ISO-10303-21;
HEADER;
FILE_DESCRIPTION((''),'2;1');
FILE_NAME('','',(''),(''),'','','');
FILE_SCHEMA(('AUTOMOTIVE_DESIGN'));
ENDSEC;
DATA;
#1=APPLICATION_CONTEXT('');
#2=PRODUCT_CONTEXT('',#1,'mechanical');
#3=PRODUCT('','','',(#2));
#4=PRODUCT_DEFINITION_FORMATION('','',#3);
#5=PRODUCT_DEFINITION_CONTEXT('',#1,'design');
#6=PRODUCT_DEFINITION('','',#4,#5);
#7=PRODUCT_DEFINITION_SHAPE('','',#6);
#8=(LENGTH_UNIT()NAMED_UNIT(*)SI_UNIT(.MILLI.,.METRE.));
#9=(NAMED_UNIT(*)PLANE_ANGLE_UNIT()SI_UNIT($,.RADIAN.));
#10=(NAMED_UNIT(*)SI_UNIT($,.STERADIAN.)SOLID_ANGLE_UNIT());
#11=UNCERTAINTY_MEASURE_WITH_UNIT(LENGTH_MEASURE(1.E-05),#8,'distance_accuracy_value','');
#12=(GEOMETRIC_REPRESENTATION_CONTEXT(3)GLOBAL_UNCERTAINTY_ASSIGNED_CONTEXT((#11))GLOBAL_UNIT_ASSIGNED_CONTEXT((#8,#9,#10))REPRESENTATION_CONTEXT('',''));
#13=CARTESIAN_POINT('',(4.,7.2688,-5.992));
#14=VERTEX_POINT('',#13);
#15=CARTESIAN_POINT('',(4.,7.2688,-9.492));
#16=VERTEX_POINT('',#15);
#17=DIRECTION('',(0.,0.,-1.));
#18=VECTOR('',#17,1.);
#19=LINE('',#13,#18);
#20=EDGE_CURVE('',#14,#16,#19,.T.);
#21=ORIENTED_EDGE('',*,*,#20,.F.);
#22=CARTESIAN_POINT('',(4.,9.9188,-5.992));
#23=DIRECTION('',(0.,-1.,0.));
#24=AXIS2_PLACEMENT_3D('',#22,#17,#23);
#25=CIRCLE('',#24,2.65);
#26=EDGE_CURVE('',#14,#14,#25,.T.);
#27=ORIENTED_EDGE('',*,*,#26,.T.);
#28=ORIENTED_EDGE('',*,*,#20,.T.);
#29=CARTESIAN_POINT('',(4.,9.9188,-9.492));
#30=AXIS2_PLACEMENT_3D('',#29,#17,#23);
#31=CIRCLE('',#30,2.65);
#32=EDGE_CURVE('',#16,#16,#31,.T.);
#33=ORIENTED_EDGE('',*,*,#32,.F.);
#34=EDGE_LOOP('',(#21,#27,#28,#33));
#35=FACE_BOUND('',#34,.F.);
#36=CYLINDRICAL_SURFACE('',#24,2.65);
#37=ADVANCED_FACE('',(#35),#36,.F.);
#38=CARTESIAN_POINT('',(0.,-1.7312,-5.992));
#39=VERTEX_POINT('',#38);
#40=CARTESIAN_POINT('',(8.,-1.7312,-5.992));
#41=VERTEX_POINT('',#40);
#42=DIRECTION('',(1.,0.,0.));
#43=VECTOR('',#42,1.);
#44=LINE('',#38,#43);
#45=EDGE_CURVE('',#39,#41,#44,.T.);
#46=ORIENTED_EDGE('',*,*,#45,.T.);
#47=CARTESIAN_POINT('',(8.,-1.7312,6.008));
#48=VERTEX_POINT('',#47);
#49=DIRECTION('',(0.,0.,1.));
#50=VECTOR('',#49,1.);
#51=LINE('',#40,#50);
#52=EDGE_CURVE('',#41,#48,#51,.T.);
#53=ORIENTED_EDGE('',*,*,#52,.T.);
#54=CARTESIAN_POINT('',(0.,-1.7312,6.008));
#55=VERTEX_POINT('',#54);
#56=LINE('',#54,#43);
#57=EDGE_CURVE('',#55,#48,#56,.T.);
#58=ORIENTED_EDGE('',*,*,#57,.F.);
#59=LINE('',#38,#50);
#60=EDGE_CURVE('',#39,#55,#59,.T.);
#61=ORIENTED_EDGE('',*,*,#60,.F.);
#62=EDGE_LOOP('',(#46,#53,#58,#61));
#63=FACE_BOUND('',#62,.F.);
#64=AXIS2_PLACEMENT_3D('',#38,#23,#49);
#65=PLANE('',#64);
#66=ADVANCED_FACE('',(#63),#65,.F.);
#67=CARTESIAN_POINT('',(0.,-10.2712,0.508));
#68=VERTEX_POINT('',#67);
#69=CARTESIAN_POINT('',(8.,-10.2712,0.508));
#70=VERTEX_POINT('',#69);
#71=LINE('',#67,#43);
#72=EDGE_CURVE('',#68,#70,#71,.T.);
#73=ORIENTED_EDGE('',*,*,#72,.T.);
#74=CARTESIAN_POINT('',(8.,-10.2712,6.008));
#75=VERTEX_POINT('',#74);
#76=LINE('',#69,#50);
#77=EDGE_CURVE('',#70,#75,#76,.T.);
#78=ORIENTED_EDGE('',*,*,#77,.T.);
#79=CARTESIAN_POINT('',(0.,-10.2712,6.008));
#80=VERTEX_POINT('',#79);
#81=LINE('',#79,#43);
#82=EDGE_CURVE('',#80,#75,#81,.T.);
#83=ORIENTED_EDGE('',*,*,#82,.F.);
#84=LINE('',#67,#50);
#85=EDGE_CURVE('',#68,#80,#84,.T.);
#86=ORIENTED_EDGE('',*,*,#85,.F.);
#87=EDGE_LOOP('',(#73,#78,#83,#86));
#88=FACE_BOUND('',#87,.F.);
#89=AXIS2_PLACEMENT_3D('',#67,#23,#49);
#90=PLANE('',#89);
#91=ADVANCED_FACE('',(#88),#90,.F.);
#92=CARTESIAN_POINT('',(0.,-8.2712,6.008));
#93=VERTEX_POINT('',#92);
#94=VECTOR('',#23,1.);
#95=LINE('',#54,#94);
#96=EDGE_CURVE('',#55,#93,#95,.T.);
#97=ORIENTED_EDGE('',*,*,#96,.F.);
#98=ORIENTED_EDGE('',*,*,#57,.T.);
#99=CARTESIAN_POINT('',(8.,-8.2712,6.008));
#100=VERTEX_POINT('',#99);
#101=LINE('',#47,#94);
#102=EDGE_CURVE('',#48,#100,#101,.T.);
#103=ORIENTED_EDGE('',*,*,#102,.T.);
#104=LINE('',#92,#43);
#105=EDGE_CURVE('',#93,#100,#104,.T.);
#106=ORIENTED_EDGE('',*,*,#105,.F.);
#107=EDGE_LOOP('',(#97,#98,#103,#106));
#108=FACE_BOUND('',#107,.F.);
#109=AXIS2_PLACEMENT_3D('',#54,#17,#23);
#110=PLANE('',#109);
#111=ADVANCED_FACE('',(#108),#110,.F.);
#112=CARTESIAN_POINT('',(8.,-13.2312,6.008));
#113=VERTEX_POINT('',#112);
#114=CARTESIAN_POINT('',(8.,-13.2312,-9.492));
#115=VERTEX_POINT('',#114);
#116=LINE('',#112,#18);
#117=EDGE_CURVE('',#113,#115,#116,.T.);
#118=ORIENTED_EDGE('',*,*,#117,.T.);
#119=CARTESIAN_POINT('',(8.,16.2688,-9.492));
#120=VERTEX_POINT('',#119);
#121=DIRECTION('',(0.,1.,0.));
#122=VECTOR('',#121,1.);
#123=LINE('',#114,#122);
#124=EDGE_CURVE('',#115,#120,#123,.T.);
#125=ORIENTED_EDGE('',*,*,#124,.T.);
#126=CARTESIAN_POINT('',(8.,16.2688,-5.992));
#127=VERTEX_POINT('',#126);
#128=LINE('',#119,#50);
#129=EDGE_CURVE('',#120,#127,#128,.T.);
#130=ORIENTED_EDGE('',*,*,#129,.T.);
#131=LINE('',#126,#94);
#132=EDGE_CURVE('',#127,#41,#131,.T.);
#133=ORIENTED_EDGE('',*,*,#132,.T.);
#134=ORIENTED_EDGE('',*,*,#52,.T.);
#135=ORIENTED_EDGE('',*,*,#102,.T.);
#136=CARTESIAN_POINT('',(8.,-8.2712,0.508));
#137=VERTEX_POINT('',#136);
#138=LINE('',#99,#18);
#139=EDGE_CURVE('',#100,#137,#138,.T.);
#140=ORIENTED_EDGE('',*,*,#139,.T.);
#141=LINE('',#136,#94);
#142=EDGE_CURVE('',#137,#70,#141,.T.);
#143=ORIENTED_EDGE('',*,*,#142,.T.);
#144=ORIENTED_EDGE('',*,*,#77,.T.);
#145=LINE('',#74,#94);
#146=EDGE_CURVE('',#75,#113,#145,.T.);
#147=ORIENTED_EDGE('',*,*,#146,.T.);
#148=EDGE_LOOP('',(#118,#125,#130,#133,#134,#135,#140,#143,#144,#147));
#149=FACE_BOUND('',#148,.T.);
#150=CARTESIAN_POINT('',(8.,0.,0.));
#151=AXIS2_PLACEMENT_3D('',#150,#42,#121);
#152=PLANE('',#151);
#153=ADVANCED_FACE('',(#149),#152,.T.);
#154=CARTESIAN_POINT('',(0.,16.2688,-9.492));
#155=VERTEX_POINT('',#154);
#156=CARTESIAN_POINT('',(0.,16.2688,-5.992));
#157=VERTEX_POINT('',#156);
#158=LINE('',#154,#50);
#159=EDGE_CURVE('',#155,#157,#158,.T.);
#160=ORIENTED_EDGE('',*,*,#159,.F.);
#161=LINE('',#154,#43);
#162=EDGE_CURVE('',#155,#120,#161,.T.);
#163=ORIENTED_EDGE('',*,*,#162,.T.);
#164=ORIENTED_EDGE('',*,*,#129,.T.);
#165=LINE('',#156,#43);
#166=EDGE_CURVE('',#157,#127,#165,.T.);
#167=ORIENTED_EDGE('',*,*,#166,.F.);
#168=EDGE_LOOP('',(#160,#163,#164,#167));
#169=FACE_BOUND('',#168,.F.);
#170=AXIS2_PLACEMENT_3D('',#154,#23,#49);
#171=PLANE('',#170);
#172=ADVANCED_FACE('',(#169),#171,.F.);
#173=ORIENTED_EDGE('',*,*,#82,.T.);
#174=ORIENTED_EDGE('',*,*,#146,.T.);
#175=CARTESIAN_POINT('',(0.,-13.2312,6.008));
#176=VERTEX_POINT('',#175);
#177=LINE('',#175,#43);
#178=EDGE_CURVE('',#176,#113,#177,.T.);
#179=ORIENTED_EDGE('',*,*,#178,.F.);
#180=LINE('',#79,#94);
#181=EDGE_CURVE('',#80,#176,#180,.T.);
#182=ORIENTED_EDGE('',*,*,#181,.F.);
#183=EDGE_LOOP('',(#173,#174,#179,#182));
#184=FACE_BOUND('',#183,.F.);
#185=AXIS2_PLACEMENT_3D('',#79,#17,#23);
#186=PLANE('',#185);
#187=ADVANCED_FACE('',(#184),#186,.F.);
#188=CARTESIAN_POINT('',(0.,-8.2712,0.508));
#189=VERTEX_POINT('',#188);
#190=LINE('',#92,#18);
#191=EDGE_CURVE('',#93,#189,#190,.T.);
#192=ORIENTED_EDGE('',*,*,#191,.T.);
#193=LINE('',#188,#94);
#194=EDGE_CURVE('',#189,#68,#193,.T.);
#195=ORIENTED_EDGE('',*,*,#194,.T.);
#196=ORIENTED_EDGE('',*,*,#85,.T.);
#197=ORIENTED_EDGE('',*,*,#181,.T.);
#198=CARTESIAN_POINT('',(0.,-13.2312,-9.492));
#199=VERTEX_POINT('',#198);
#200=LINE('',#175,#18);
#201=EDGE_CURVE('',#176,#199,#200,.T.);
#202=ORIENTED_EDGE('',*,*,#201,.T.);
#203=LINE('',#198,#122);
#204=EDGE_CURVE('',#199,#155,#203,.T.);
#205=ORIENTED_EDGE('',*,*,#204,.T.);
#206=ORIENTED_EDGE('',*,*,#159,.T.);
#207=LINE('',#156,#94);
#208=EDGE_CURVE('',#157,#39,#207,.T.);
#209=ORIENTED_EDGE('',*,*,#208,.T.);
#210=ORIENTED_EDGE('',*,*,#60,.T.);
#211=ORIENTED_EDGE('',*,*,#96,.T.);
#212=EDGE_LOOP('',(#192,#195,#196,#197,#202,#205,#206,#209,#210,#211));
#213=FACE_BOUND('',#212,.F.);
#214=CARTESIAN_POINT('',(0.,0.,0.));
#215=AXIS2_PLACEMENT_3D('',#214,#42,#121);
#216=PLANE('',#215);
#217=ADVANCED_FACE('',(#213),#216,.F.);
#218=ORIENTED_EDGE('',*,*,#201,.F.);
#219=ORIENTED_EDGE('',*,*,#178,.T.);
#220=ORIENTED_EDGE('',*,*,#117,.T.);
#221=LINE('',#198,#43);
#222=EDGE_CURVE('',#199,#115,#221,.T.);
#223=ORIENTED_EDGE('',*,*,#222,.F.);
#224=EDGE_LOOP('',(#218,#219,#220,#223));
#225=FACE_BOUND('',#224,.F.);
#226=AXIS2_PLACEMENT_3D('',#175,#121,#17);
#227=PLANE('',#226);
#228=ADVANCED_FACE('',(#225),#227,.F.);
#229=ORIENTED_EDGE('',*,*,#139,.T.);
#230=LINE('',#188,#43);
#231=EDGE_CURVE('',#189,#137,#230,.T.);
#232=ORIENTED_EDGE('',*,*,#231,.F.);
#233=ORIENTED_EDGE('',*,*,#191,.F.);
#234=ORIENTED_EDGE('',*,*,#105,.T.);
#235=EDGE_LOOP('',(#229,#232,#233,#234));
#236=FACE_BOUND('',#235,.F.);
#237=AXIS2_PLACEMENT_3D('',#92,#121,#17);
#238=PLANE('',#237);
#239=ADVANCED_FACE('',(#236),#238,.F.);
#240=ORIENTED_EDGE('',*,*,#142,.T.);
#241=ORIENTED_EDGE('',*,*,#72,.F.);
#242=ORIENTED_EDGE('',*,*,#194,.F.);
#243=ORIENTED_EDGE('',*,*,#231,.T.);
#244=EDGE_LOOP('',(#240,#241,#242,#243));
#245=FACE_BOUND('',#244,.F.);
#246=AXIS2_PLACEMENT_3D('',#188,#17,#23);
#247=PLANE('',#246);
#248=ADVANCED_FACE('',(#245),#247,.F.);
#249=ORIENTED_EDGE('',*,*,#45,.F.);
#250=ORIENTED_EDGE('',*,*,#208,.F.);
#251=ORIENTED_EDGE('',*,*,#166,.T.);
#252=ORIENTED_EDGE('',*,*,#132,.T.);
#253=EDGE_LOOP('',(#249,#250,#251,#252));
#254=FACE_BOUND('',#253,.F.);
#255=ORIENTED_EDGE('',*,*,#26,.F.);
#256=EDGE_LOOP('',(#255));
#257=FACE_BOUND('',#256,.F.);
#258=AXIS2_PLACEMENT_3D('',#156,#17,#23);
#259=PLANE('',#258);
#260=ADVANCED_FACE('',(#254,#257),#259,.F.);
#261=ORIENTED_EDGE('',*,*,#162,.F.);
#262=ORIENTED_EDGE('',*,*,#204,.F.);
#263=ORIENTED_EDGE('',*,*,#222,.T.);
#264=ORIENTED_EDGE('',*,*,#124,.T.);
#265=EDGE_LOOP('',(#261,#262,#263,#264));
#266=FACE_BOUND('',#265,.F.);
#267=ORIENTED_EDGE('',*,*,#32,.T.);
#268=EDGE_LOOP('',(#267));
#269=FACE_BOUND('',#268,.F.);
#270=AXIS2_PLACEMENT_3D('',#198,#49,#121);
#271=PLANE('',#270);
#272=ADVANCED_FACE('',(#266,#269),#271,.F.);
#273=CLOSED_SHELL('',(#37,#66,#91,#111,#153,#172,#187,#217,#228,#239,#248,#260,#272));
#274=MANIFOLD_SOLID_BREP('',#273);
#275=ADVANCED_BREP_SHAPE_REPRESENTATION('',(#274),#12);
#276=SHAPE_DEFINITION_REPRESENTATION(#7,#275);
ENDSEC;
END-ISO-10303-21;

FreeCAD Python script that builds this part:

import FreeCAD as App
import Part
import Sketcher


def add_polygon(sketch, points):
    """Adds a closed chain of lines whose ends are joined by coincident constraints."""
    first, n = sketch.GeometryCount, len(points)
    for a, b in zip(points, points[1:] + points[:1]):
        sketch.addGeometry(Part.LineSegment(App.Vector(*a, 0), App.Vector(*b, 0)), False)
    for i in range(n):
        sketch.addConstraint(Sketcher.Constraint("Coincident", first + i, 2, first + (i + 1) % n, 1))

doc = App.newDocument("Part")
body = doc.addObject("PartDesign::Body", "Body")

# Sketch on YZ plane
sketch1 = body.newObject("Sketcher::SketchObject", "Sketch")
sketch1.AttachmentSupport = (doc.getObject("YZ_Plane"), [""])
sketch1.MapMode = "FlatFace"
add_polygon(sketch1, [(-1.7, 6), (-8.3, 6), (-8.3, 0.5), (-10.3, 0.5), (-10.3, 6), (-13.2, 6), (-13.2, -9.5), (16.3, -9.5), (16.3, -6), (-1.7, -6)])  # lines 0-9
sketch1.addConstraint([
    Sketcher.Constraint("Horizontal", 0),
    Sketcher.Constraint("Vertical", 1),
    Sketcher.Constraint("Horizontal", 2),
    Sketcher.Constraint("Vertical", 3),
    Sketcher.Constraint("Horizontal", 4),
    Sketcher.Constraint("Vertical", 5),
    Sketcher.Constraint("Horizontal", 6),
    Sketcher.Constraint("Vertical", 7),
    Sketcher.Constraint("Horizontal", 8),
    Sketcher.Constraint("Vertical", 9),
    Sketcher.Constraint("Horizontal", 0, 2, 3, 2),
    Sketcher.Constraint("DistanceX", 2, 2, 2, 1, 2.0),
    Sketcher.Constraint("DistanceX", 8, 2, 8, 1, 18.0),
    Sketcher.Constraint("DistanceY", 9, 1, 9, 2, 12.0),
    Sketcher.Constraint("DistanceX", 6, 1, 6, 2, 29.5),
    Sketcher.Constraint("DistanceY", 1, 2, 1, 1, 5.5),
    Sketcher.Constraint("DistanceY", 5, 2, 5, 1, 15.5),
    Sketcher.Constraint("DistanceX", 1, 2, 6, 2, 24.54),
    Sketcher.Constraint("DistanceY", -1, 1, 0, 2, 6.008),
    Sketcher.Constraint("DistanceX", 0, 2, -1, 1, 8.2712),
])
pad1 = body.newObject("PartDesign::Pad", "Pad")
pad1.Profile = sketch1
pad1.Length = 8

# Sketch on XY plane
sketch2 = body.newObject("Sketcher::SketchObject", "Sketch001")
sketch2.AttachmentSupport = (doc.getObject("XY_Plane"), [""])
sketch2.MapMode = "FlatFace"
sketch2.AttachmentOffset = App.Placement(App.Vector(0, 0, -5.992), App.Rotation())
sketch2.addGeometry(Part.Circle(App.Vector(4, 9.9, 0), App.Vector(0, 0, 1), 2.6), False)
sketch2.addConstraint([
    Sketcher.Constraint("Diameter", 0, 5.3),
    Sketcher.Constraint("DistanceX", -1, 1, 0, 3, 4.0),
    Sketcher.Constraint("DistanceY", -1, 1, 0, 3, 9.9188),
])
doc.recompute()
hole = body.newObject("PartDesign::Hole", "Hole")
hole.Profile = sketch2
hole.ThreadType = "None"
hole.Diameter = 5.3
hole.DepthType = "Dimension"
hole.Depth = 8
hole.DrillPoint = "Angled"
hole.DrillPointAngle = 118

doc.recompute()
